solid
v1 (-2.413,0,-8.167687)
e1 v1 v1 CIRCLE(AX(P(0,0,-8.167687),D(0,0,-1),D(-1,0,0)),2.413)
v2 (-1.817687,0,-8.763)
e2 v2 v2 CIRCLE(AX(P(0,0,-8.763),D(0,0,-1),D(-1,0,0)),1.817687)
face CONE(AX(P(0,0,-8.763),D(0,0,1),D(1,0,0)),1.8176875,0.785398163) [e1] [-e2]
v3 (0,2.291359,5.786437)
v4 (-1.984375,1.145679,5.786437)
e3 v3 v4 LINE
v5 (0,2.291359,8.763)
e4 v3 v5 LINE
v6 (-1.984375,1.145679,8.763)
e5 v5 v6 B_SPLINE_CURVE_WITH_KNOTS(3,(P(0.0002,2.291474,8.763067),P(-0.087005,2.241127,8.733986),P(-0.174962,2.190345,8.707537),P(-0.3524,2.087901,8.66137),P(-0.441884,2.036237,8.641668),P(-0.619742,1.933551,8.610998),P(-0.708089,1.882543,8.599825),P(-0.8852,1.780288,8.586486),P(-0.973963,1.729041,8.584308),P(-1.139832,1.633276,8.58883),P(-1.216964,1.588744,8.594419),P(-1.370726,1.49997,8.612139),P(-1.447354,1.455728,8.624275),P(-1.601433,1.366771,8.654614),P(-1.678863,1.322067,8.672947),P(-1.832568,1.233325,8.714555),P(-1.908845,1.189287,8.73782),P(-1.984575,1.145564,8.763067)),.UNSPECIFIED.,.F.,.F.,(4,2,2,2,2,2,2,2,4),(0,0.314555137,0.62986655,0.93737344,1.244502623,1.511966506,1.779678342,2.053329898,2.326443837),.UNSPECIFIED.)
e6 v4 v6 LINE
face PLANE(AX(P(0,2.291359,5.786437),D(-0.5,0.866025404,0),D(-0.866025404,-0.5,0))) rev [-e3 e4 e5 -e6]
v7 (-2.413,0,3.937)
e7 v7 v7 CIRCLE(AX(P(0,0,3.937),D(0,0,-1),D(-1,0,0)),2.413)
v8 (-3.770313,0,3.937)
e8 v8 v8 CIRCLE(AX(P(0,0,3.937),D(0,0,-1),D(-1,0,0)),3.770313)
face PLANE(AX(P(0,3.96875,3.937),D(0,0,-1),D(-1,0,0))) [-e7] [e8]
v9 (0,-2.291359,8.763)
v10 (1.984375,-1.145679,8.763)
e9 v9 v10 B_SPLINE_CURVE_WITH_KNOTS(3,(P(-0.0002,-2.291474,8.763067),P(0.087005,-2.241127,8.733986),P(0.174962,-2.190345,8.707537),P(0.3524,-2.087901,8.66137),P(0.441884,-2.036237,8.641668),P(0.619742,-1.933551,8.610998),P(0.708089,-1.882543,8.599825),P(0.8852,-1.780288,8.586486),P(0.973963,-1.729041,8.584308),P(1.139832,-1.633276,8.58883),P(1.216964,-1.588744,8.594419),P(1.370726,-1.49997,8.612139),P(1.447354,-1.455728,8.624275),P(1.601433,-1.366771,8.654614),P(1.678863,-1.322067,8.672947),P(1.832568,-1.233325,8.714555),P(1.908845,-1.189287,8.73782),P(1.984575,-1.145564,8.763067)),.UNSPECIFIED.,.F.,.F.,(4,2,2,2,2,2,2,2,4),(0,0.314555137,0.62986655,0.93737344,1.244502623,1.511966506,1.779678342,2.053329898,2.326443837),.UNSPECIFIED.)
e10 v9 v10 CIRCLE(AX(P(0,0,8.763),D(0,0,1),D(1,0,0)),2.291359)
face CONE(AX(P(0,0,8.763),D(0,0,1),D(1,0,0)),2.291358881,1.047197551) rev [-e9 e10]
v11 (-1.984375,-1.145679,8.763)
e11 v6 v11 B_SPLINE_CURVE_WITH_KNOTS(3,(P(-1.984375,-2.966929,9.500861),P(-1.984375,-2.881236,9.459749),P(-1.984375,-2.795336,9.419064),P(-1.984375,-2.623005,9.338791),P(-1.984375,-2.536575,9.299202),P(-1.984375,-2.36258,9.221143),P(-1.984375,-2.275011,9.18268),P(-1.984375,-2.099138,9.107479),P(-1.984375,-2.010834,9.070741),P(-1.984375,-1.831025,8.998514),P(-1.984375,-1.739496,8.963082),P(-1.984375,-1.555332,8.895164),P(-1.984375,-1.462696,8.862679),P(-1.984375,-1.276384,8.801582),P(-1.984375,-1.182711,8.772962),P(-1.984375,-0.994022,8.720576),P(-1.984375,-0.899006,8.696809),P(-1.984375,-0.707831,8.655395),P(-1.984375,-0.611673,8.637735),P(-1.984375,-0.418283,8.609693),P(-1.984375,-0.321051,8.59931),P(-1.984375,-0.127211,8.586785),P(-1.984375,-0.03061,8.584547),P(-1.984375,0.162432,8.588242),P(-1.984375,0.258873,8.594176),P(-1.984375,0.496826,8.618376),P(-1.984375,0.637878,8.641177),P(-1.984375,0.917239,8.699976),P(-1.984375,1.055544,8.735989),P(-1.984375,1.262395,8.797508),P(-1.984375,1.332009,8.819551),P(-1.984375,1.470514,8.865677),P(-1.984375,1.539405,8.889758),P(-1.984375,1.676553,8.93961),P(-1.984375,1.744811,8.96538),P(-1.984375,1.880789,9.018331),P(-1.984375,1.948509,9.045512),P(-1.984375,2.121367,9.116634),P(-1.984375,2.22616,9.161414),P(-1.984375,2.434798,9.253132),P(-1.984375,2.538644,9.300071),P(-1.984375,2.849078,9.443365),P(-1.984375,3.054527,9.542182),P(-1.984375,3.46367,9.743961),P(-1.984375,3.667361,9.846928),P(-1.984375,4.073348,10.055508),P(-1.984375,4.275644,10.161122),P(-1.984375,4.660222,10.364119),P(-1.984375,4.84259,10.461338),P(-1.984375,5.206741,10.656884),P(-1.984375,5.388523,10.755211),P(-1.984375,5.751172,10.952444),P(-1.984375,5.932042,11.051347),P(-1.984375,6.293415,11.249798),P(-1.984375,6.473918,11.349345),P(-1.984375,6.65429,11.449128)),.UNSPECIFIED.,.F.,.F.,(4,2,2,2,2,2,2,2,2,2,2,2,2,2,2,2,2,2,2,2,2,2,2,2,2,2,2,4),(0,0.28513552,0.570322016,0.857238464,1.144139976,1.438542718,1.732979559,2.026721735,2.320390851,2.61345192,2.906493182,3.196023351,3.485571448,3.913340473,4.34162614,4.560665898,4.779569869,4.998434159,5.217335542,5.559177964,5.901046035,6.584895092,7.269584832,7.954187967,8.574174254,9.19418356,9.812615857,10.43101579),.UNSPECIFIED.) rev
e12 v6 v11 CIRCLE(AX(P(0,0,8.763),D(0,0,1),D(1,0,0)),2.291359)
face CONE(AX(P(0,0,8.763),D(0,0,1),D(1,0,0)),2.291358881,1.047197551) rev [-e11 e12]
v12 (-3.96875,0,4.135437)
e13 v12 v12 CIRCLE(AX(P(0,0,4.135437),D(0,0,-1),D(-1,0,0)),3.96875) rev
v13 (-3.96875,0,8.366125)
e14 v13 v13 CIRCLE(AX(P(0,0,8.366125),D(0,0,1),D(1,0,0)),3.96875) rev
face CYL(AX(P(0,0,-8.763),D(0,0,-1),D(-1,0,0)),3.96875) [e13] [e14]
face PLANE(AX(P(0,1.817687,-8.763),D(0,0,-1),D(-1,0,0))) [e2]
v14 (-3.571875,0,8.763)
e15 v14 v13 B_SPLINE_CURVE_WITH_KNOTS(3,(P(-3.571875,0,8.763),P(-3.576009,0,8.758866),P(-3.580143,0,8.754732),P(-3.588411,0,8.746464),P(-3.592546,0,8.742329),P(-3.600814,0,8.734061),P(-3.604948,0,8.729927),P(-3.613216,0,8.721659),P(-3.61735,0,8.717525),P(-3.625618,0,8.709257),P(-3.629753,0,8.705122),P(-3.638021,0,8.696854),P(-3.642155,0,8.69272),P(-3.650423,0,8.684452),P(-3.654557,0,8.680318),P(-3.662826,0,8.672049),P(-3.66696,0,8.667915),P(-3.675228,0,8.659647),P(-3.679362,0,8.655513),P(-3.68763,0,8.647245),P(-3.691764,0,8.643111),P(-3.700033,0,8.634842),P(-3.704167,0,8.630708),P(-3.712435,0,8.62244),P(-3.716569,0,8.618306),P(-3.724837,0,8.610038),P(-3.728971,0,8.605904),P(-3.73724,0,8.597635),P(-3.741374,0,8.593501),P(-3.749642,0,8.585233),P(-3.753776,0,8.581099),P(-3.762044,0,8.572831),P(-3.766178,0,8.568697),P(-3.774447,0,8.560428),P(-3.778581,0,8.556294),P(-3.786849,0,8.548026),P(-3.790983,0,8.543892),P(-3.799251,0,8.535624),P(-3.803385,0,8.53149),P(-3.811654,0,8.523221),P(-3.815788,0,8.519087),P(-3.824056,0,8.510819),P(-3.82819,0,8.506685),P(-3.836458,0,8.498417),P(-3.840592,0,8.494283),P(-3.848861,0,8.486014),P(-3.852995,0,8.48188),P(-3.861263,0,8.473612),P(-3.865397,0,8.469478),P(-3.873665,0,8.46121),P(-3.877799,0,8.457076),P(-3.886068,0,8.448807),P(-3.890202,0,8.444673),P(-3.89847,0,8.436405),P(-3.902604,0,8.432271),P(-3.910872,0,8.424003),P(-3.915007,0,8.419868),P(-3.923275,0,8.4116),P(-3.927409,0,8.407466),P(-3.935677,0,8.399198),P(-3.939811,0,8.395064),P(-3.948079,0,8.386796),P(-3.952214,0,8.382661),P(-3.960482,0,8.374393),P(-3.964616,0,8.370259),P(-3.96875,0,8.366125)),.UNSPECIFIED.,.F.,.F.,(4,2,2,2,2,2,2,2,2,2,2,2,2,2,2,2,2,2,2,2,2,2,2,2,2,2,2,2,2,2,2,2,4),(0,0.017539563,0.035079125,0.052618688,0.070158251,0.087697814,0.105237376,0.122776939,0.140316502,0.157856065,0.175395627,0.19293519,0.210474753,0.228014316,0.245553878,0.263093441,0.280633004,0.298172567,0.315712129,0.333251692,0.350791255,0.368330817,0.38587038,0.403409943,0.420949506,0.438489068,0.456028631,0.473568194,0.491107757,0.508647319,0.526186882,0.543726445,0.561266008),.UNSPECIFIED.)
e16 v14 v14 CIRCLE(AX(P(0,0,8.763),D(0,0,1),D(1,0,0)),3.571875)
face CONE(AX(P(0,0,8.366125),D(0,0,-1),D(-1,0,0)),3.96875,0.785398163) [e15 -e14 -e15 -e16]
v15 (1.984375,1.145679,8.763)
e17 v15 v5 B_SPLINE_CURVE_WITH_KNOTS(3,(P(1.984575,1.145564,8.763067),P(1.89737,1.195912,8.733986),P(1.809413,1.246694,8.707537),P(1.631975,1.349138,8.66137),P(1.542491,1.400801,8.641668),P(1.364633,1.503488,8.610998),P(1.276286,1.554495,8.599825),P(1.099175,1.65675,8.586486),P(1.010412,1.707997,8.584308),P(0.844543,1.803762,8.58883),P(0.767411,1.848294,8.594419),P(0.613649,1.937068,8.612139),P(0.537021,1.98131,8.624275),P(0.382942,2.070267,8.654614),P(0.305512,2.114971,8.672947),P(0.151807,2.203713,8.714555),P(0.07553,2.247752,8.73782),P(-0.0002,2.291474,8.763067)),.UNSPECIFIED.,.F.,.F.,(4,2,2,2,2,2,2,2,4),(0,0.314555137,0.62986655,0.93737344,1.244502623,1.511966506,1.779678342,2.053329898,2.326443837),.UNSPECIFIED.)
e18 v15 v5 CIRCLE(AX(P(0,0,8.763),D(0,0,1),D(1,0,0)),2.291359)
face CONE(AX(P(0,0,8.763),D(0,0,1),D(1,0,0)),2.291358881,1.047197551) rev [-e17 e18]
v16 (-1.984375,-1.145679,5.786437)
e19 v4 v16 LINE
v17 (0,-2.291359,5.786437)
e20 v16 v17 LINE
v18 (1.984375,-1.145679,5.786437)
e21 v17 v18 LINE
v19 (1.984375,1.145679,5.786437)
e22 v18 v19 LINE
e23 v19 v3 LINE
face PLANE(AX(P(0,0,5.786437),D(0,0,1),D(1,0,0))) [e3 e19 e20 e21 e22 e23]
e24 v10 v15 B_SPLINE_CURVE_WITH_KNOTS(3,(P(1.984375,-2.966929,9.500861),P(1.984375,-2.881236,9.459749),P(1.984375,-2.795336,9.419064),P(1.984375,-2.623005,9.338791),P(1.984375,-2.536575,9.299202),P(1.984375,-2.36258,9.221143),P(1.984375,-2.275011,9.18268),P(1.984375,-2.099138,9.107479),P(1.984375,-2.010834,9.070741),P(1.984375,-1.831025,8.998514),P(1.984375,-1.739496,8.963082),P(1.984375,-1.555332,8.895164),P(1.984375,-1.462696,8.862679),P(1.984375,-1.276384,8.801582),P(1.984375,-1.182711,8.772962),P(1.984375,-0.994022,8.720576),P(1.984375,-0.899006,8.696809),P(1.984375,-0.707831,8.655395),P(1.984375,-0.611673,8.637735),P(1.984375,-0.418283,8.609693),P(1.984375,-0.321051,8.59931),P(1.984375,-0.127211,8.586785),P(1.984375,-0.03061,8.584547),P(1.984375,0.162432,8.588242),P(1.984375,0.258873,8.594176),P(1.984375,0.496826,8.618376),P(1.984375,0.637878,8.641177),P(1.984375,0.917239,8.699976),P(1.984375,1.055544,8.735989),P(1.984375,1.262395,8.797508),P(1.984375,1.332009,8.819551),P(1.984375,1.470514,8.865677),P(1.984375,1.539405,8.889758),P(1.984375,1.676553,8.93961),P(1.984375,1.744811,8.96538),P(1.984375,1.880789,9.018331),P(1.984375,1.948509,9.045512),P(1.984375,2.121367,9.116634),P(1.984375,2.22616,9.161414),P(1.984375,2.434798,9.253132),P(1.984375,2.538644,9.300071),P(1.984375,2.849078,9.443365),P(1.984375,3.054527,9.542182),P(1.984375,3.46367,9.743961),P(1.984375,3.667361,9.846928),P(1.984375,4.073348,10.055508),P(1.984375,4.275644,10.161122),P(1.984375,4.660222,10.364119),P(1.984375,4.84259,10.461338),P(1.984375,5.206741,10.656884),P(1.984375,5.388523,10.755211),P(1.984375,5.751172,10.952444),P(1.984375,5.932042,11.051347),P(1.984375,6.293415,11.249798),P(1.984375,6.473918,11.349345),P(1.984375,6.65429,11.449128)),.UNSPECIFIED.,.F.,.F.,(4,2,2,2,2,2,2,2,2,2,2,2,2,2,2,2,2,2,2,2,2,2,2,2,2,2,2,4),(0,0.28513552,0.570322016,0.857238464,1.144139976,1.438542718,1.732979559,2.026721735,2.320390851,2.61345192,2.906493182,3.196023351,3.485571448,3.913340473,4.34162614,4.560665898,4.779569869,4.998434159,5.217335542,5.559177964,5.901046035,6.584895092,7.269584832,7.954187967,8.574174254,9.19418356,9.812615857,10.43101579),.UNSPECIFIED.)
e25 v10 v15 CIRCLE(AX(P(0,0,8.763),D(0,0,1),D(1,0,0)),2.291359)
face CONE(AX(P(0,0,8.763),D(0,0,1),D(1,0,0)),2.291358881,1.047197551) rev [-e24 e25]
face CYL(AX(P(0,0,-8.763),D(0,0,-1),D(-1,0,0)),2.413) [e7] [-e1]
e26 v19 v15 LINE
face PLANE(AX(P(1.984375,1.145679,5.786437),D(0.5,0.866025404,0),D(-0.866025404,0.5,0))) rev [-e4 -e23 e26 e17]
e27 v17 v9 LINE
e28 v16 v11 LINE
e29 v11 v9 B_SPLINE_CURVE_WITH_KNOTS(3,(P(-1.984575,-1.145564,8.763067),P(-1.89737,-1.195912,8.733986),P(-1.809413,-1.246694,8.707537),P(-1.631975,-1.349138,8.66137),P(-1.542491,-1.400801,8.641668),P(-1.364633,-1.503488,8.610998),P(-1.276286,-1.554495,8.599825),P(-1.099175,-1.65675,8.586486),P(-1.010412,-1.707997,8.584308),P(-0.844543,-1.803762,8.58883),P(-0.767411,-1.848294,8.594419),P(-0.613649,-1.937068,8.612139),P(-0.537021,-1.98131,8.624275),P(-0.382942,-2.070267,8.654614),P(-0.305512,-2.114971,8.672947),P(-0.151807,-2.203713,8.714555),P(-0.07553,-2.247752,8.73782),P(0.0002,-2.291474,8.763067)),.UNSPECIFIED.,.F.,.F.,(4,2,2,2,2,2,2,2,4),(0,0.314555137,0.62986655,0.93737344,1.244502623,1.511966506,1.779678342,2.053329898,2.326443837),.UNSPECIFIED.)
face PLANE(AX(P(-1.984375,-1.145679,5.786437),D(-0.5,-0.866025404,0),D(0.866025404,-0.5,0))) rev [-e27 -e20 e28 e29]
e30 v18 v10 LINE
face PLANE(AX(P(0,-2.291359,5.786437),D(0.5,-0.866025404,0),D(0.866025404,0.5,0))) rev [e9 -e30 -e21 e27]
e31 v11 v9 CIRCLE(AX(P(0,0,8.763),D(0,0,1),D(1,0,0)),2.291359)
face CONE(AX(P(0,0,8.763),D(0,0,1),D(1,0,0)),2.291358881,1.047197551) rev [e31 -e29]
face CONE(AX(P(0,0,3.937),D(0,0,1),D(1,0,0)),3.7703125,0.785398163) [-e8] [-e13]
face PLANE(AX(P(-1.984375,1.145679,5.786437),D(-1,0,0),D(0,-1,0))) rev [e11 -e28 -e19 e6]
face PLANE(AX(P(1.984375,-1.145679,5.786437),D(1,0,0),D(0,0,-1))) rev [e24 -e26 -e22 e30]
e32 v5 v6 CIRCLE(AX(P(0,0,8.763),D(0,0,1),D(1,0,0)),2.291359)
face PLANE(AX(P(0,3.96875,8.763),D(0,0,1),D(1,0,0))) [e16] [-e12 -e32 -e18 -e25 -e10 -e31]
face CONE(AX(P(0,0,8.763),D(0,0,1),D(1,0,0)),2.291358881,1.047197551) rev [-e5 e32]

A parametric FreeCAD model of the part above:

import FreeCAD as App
import Part
import Sketcher

V = App.Vector
Q = App.Units.Quantity


def edges_at(feature, points):
    """Names of the edges that pass closest to the given points."""
    edges = feature.Shape.Edges
    near = lambda p: min(range(len(edges)), key=lambda i: edges[i].distToShape(Part.Vertex(*p))[0])
    return sorted({f"Edge{near(p) + 1}" for p in points})

doc = App.newDocument("Part")
params = doc.addObject("Spreadsheet::Sheet", "Params")
for row, (alias, value) in enumerate([
    ("sketch1_height", "0.19 in"),
    ("sketch1_height2", "0.69 in"),
    ("sketch1_width", "0.15625 in"),
    ("revolution_angle", "360 deg"),
    ("pocket1_length", "2.976562 mm"),
    ("groove_angle", "360 deg"),
    ("chamfer_size", "0.015625 in"),
    ("chamfer2_size", "0.198437 mm"),
], start=1):
    params.set(f"A{row}", alias)
    params.set(f"B{row}", "=" + value)
    params.setAlias(f"B{row}", alias)

body = doc.addObject("PartDesign::Body", "Body")

# Sketch on YZ plane
sketch1 = body.newObject("Sketcher::SketchObject", "Sketch")
sketch1.AttachmentSupport = (doc.getObject("YZ_Plane"), [""])
sketch1.MapMode = "FlatFace"
sketch1.addGeometry([
    Part.LineSegment(V(1.8, -8.8, 0), V(2.4, -8.2, 0)),  # 0
    Part.LineSegment(V(2.4, -8.2, 0), V(2.4, 3.9, 0)),  # 1
    Part.LineSegment(V(2.4, 3.9, 0), V(4, 3.9, 0)),  # 2
    Part.LineSegment(V(4, 3.9, 0), V(4, 8.8, 0)),  # 3
    Part.LineSegment(V(4, 8.8, 0), V(0, 8.8, 0)),  # 4
    Part.LineSegment(V(0, 8.8, 0), V(0, -8.8, 0)),  # 5
    Part.LineSegment(V(0, -8.8, 0), V(1.8, -8.8, 0)),  # 6
], False)
sketch1.addConstraint([
    Sketcher.Constraint("Coincident", 0, 2, 1, 1),
    Sketcher.Constraint("Coincident", 1, 2, 2, 1),
    Sketcher.Constraint("Coincident", 2, 2, 3, 1),
    Sketcher.Constraint("Coincident", 3, 2, 4, 1),
    Sketcher.Constraint("Coincident", 4, 2, 5, 1),
    Sketcher.Constraint("Coincident", 5, 2, 6, 1),
    Sketcher.Constraint("Coincident", 6, 2, 0, 1),
    Sketcher.Constraint("Vertical", 1),
    Sketcher.Constraint("Horizontal", 2),
    Sketcher.Constraint("Vertical", 3),
    Sketcher.Constraint("Horizontal", 4),
    Sketcher.Constraint("Vertical", 5),
    Sketcher.Constraint("Horizontal", 6),
    Sketcher.Constraint("Symmetric", 4, 2, 5, 2, -1, 1),
    Sketcher.Constraint("Angle", 0, Q("45 deg")),
    Sketcher.Constraint("DistanceY", 3, 1, 3, 2, Q("0.19 in")),
    Sketcher.Constraint("DistanceY", 5, 2, 5, 1, Q("0.69 in")),
    Sketcher.Constraint("DistanceX", 4, 2, 4, 1, Q("0.15625 in")),
    Sketcher.Constraint("DistanceX", -1, 1, 0, 2, Q("0.095 in")),
    Sketcher.Constraint("Distance", 0, 0.841899),
])
sketch1.setExpression("Constraints[15]", "Params.sketch1_height")
sketch1.setExpression("Constraints[16]", "Params.sketch1_height2")
sketch1.setExpression("Constraints[17]", "Params.sketch1_width")
revolution = body.newObject("PartDesign::Revolution", "Revolution")
revolution.Profile = sketch1
revolution.ReferenceAxis = (sketch1, ["V_Axis"])
revolution.setExpression("Angle", "Params.revolution_angle")

# Sketch on XY plane
sketch2 = body.newObject("Sketcher::SketchObject", "Sketch001")
sketch2.AttachmentSupport = (doc.getObject("XY_Plane"), [""])
sketch2.MapMode = "FlatFace"
sketch2.AttachmentOffset = App.Placement(V(0, 0, 0.345 * 25.4), App.Rotation())
sketch2.addGeometry([
    Part.LineSegment(V(0, 2.3, 0), V(-2, 1.1, 0)),  # 0
    Part.LineSegment(V(-2, 1.1, 0), V(-2, -1.1, 0)),  # 1
    Part.LineSegment(V(-2, -1.1, 0), V(0, -2.3, 0)),  # 2
    Part.LineSegment(V(0, -2.3, 0), V(2, -1.1, 0)),  # 3
    Part.LineSegment(V(2, -1.1, 0), V(2, 1.1, 0)),  # 4
    Part.LineSegment(V(2, 1.1, 0), V(0, 2.3, 0)),  # 5
], False)
sketch2.addConstraint([
    Sketcher.Constraint("Coincident", 0, 2, 1, 1),
    Sketcher.Constraint("Coincident", 1, 2, 2, 1),
    Sketcher.Constraint("Coincident", 2, 2, 3, 1),
    Sketcher.Constraint("Coincident", 3, 2, 4, 1),
    Sketcher.Constraint("Coincident", 4, 2, 5, 1),
    Sketcher.Constraint("Coincident", 5, 2, 0, 1),
    Sketcher.Constraint("Vertical", 1),
    Sketcher.Constraint("Vertical", 4),
    Sketcher.Constraint("Symmetric", 0, 2, 3, 2, -1, 1),
    Sketcher.Constraint("Symmetric", 2, 2, 5, 2, -1, 1),
    Sketcher.Constraint("PointOnObject", 2, 2, -2),
    Sketcher.Constraint("Parallel", 2, 5),
    Sketcher.Constraint("Horizontal", 1, 2, 3, 2),
    Sketcher.Constraint("Angle", 0, Q("-150 deg")),
    Sketcher.Constraint("DistanceX", 0, 2, -1, 1, Q("0.078125 in")),
    Sketcher.Constraint("DistanceY", 1, 2, 1, 1, 2.291359),
])
pocket1 = body.newObject("PartDesign::Pocket", "Pocket")
pocket1.Profile = sketch2
pocket1.setExpression("Length", "Params.pocket1_length")

# Sketch on YZ plane
sketch3 = body.newObject("Sketcher::SketchObject", "Sketch002")
sketch3.AttachmentSupport = (doc.getObject("YZ_Plane"), [""])
sketch3.MapMode = "FlatFace"
sketch3.addGeometry([
    Part.LineSegment(V(0, 8.8, 0), V(-2.3, 8.8, 0)),
    Part.LineSegment(V(-2.3, 8.8, 0), V(0, 7.4, 0)),
    Part.LineSegment(V(0, 7.4, 0), V(0, 8.8, 0)),
], False)
sketch3.addConstraint([
    Sketcher.Constraint("Coincident", 0, 2, 1, 1),
    Sketcher.Constraint("Coincident", 1, 2, 2, 1),
    Sketcher.Constraint("Coincident", 2, 2, 0, 1),
    Sketcher.Constraint("Horizontal", 0),
    Sketcher.Constraint("Vertical", 2),
    Sketcher.Constraint("PointOnObject", 1, 2, -2),
    Sketcher.Constraint("Angle", 1, Q("-30 deg")),
    Sketcher.Constraint("DistanceY", -1, 1, 0, 2, Q("0.345 in")),
    Sketcher.Constraint("DistanceX", 0, 2, 0, 1, 2.291359),
])
groove = body.newObject("PartDesign::Groove", "Groove")
groove.Profile = sketch3
groove.ReferenceAxis = (sketch3, ["V_Axis"])
groove.setExpression("Angle", "Params.groove_angle")
doc.recompute()

chamfer = body.newObject("PartDesign::Chamfer", "Chamfer")
chamfer.Base = (groove, edges_at(groove, [(3.969, 0, 8.763)]))
chamfer.setExpression("Size", "Params.chamfer_size")
doc.recompute()

chamfer2 = body.newObject("PartDesign::Chamfer", "Chamfer001")
chamfer2.Base = (chamfer, edges_at(chamfer, [(3.969, 0, 3.937)]))
chamfer2.setExpression("Size", "Params.chamfer2_size")

doc.recompute()
